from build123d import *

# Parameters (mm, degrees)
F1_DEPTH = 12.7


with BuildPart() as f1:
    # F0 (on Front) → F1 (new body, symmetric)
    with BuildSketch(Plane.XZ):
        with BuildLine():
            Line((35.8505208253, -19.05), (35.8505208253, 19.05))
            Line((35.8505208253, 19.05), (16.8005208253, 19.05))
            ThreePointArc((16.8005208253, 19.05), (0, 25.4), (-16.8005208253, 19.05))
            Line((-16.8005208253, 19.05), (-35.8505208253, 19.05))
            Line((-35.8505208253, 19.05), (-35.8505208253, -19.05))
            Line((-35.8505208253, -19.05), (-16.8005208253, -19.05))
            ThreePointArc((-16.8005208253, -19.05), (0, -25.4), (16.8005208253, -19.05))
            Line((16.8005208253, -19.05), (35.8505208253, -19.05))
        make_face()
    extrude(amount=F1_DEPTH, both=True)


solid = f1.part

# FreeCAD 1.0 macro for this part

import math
import FreeCAD as App
import Part
import Sketcher

V = App.Vector
Q = App.Units.Quantity

doc = App.newDocument("Part")
body = doc.addObject("PartDesign::Body", "Body")

# Sketch on XZ plane
sketch1 = body.newObject("Sketcher::SketchObject", "Sketch")
sketch1.AttachmentSupport = (doc.getObject("XZ_Plane"), [""])
sketch1.MapMode = "FlatFace"
sketch1.addGeometry([
    Part.LineSegment(V(35.850521, -19.05, 0), V(35.850521, 19.05, 0)),  # 0
    Part.LineSegment(V(35.850521, 19.05, 0), V(16.800521, 19.05, 0)),  # 1
    Part.ArcOfCircle(Part.Circle(V(0, 0, 0), V(0, 0, 1), 25.4), math.radians(48.590378), math.radians(131.409622)),  # 2
    Part.LineSegment(V(-16.800521, 19.05, 0), V(-35.850521, 19.05, 0)),  # 3
    Part.LineSegment(V(-35.850521, 19.05, 0), V(-35.850521, -19.05, 0)),  # 4
    Part.LineSegment(V(-35.850521, -19.05, 0), V(-16.800521, -19.05, 0)),  # 5
    Part.ArcOfCircle(Part.Circle(V(0, 0, 0), V(0, 0, 1), 25.4), math.radians(-131.409622), math.radians(-48.590378)),  # 6
    Part.LineSegment(V(16.800521, -19.05, 0), V(35.850521, -19.05, 0)),  # 7
], False)
sketch1.addConstraint([
    Sketcher.Constraint("Coincident", 0, 2, 1, 1),
    Sketcher.Constraint("Coincident", 1, 2, 2, 1),
    Sketcher.Constraint("Coincident", 2, 2, 3, 1),
    Sketcher.Constraint("Coincident", 3, 2, 4, 1),
    Sketcher.Constraint("Coincident", 4, 2, 5, 1),
    Sketcher.Constraint("Coincident", 5, 2, 6, 1),
    Sketcher.Constraint("Coincident", 6, 2, 7, 1),
    Sketcher.Constraint("Coincident", 7, 2, 0, 1),
    Sketcher.Constraint("Vertical", 0),
    Sketcher.Constraint("Horizontal", 1),
    Sketcher.Constraint("Horizontal", 3),
    Sketcher.Constraint("Vertical", 4),
    Sketcher.Constraint("Horizontal", 5),
    Sketcher.Constraint("Horizontal", 7),
    Sketcher.Constraint("Coincident", 2, 3, -1, 1),
    Sketcher.Constraint("Coincident", 6, 3, -1, 1),
    Sketcher.Constraint("Equal", 2, 6),
    Sketcher.Constraint("Symmetric", 0, 2, 4, 2, -1, 1),
    Sketcher.Constraint("Horizontal", 1, 2, 2, 2),
    Sketcher.Constraint("Horizontal", 5, 2, 6, 2),
    Sketcher.Constraint("Radius", 2, Q("1 in")),
    Sketcher.Constraint("DistanceY", 0, 1, 0, 2, Q("1.5 in")),
    Sketcher.Constraint("DistanceX", 1, 2, 1, 1, Q("0.75 in")),
])
pad1 = body.newObject("PartDesign::Pad", "Pad")
pad1.Profile = sketch1
pad1.Length = Q("1 in")
pad1.Midplane = True

doc.recompute()
